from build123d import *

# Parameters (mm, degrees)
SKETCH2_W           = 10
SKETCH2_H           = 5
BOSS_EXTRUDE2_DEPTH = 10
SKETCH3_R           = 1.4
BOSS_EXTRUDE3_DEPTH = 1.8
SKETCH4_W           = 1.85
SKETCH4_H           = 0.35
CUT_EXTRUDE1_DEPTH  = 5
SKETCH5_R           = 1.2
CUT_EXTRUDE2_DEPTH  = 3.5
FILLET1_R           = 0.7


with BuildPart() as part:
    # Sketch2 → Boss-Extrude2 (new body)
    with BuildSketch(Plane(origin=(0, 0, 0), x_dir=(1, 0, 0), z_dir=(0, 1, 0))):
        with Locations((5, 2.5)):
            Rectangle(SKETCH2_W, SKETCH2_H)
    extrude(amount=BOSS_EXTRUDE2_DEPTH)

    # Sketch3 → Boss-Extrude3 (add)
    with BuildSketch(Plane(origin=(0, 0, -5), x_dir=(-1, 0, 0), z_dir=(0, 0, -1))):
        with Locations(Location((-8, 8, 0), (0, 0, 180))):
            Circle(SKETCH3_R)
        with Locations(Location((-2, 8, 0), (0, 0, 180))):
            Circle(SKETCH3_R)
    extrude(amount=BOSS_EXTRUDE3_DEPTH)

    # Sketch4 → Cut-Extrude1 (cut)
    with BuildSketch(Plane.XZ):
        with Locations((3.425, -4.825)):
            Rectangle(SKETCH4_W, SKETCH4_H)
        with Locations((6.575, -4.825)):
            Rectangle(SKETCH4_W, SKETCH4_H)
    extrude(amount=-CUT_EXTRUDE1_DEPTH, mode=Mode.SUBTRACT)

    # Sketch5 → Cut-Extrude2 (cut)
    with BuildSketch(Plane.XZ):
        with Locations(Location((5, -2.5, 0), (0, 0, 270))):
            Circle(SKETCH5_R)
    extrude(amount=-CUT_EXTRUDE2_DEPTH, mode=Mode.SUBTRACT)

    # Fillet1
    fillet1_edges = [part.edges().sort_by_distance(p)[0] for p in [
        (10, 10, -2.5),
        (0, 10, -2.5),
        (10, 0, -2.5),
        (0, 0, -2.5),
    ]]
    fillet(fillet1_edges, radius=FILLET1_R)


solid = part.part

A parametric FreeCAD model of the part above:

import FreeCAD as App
import Part
import Sketcher
from FreeCAD import Vector


def edges_at(feature, points):
    """Names of the edges that pass closest to the given points."""
    edges = feature.Shape.Edges
    near = lambda p: min(range(len(edges)), key=lambda i: edges[i].distToShape(Part.Vertex(*p))[0])
    return sorted({f"Edge{near(p) + 1}" for p in points})

doc = App.newDocument("Part")
body = doc.addObject("PartDesign::Body", "Body")

# Sketch on XZ plane
sketch1 = body.newObject("Sketcher::SketchObject", "Sketch")
sketch1.AttachmentSupport = (doc.getObject("XZ_Plane"), [""])
sketch1.MapMode = "FlatFace"
sketch1.addGeometry([
    Part.LineSegment(Vector(0, -5, 0), Vector(0, 0, 0)),
    Part.LineSegment(Vector(0, 0, 0), Vector(10, 0, 0)),
    Part.LineSegment(Vector(10, 0, 0), Vector(10, -5, 0)),
    Part.LineSegment(Vector(10, -5, 0), Vector(0, -5, 0)),
], False)
sketch1.addConstraint([
    Sketcher.Constraint("Coincident", 0, 2, 1, 1),
    Sketcher.Constraint("Coincident", 1, 2, 2, 1),
    Sketcher.Constraint("Coincident", 2, 2, 3, 1),
    Sketcher.Constraint("Coincident", 3, 2, 0, 1),
    Sketcher.Constraint("Vertical", 0),
    Sketcher.Constraint("Horizontal", 1),
    Sketcher.Constraint("Vertical", 2),
    Sketcher.Constraint("Horizontal", 3),
    Sketcher.Constraint("Coincident", 0, 2, -1, 1),
    Sketcher.Constraint("DistanceX", 1, 1, 1, 2, 10.0),
    Sketcher.Constraint("DistanceY", 0, 1, 0, 2, 5.0),
])
pad1 = body.newObject("PartDesign::Pad", "Pad")
pad1.Profile = sketch1
pad1.Length = 10
pad1.Reversed = True

# Sketch on XY plane
sketch2 = body.newObject("Sketcher::SketchObject", "Sketch001")
sketch2.AttachmentSupport = (doc.getObject("XY_Plane"), [""])
sketch2.MapMode = "FlatFace"
sketch2.AttachmentOffset = App.Placement(Vector(0, 0, -5), App.Rotation())
sketch2.addGeometry([
    Part.Circle(Vector(8, 8, 0), Vector(0, 0, 1), 1.4),
    Part.Circle(Vector(2, 8, 0), Vector(0, 0, 1), 1.4),
], False)
sketch2.addConstraint([
    Sketcher.Constraint("Equal", 0, 1),
    Sketcher.Constraint("Horizontal", 0, 3, 1, 3),
    Sketcher.Constraint("Diameter", 0, 2.8),
    Sketcher.Constraint("DistanceX", -1, 1, 0, 3, 8.0),
    Sketcher.Constraint("DistanceY", -1, 1, 0, 3, 8.0),
    Sketcher.Constraint("DistanceX", -1, 1, 1, 3, 2.0),
])
pad2 = body.newObject("PartDesign::Pad", "Pad001")
pad2.Profile = sketch2
pad2.Length = 1.8
pad2.Reversed = True

# Sketch on XZ plane
sketch3 = body.newObject("Sketcher::SketchObject", "Sketch002")
sketch3.AttachmentSupport = (doc.getObject("XZ_Plane"), [""])
sketch3.MapMode = "FlatFace"
sketch3.addGeometry([
    Part.LineSegment(Vector(2.5, -4.65, 0), Vector(2.5, -5, 0)),  # 0
    Part.LineSegment(Vector(2.5, -5, 0), Vector(4.35, -5, 0)),  # 1
    Part.LineSegment(Vector(4.35, -5, 0), Vector(4.35, -4.65, 0)),  # 2
    Part.LineSegment(Vector(4.35, -4.65, 0), Vector(2.5, -4.65, 0)),  # 3
    Part.LineSegment(Vector(5.65, -4.65, 0), Vector(5.65, -5, 0)),  # 4
    Part.LineSegment(Vector(5.65, -5, 0), Vector(7.5, -5, 0)),  # 5
    Part.LineSegment(Vector(7.5, -5, 0), Vector(7.5, -4.65, 0)),  # 6
    Part.LineSegment(Vector(7.5, -4.65, 0), Vector(5.65, -4.65, 0)),  # 7
], False)
sketch3.addConstraint([
    Sketcher.Constraint("Coincident", 0, 2, 1, 1),
    Sketcher.Constraint("Coincident", 1, 2, 2, 1),
    Sketcher.Constraint("Coincident", 2, 2, 3, 1),
    Sketcher.Constraint("Coincident", 3, 2, 0, 1),
    Sketcher.Constraint("Coincident", 4, 2, 5, 1),
    Sketcher.Constraint("Coincident", 5, 2, 6, 1),
    Sketcher.Constraint("Coincident", 6, 2, 7, 1),
    Sketcher.Constraint("Coincident", 7, 2, 4, 1),
    Sketcher.Constraint("Vertical", 0),
    Sketcher.Constraint("Horizontal", 1),
    Sketcher.Constraint("Vertical", 2),
    Sketcher.Constraint("Horizontal", 3),
    Sketcher.Constraint("Vertical", 4),
    Sketcher.Constraint("Horizontal", 5),
    Sketcher.Constraint("Vertical", 6),
    Sketcher.Constraint("Horizontal", 7),
    Sketcher.Constraint("Horizontal", 1, 2, 4, 2),
    Sketcher.Constraint("Horizontal", 3, 2, 6, 2),
    Sketcher.Constraint("Equal", 3, 5),
    Sketcher.Constraint("DistanceY", 0, 2, -1, 1, 5.0),
    Sketcher.Constraint("DistanceX", 0, 2, 5, 2, 5.0),
    Sketcher.Constraint("DistanceX", 1, 1, 1, 2, 1.85),
    Sketcher.Constraint("DistanceY", 0, 2, 0, 1, 0.35),
    Sketcher.Constraint("DistanceX", -1, 1, 0, 2, 2.5),
])
pocket1 = body.newObject("PartDesign::Pocket", "Pocket")
pocket1.Profile = sketch3
pocket1.Length = 5

# Sketch on XZ plane
sketch4 = body.newObject("Sketcher::SketchObject", "Sketch003")
sketch4.AttachmentSupport = (doc.getObject("XZ_Plane"), [""])
sketch4.MapMode = "FlatFace"
sketch4.addGeometry(Part.Circle(Vector(5, -2.5, 0), Vector(0, 0, 1), 1.2), False)
sketch4.addConstraint([
    Sketcher.Constraint("Diameter", 0, 2.4),
    Sketcher.Constraint("DistanceX", -1, 1, 0, 3, 5.0),
    Sketcher.Constraint("DistanceY", 0, 3, -1, 1, 2.5),
])
pocket2 = body.newObject("PartDesign::Pocket", "Pocket001")
pocket2.Profile = sketch4
pocket2.Length = 3.5
doc.recompute()

fillet = body.newObject("PartDesign::Fillet", "Fillet")
fillet.Base = (pocket2, edges_at(pocket2, [
    (10, 10, -2.5),
    (0, 10, -2.5),
    (10, 0, -2.5),
    (0, 0, -2.5),
]))
fillet.Radius = 0.7

doc.recompute()
